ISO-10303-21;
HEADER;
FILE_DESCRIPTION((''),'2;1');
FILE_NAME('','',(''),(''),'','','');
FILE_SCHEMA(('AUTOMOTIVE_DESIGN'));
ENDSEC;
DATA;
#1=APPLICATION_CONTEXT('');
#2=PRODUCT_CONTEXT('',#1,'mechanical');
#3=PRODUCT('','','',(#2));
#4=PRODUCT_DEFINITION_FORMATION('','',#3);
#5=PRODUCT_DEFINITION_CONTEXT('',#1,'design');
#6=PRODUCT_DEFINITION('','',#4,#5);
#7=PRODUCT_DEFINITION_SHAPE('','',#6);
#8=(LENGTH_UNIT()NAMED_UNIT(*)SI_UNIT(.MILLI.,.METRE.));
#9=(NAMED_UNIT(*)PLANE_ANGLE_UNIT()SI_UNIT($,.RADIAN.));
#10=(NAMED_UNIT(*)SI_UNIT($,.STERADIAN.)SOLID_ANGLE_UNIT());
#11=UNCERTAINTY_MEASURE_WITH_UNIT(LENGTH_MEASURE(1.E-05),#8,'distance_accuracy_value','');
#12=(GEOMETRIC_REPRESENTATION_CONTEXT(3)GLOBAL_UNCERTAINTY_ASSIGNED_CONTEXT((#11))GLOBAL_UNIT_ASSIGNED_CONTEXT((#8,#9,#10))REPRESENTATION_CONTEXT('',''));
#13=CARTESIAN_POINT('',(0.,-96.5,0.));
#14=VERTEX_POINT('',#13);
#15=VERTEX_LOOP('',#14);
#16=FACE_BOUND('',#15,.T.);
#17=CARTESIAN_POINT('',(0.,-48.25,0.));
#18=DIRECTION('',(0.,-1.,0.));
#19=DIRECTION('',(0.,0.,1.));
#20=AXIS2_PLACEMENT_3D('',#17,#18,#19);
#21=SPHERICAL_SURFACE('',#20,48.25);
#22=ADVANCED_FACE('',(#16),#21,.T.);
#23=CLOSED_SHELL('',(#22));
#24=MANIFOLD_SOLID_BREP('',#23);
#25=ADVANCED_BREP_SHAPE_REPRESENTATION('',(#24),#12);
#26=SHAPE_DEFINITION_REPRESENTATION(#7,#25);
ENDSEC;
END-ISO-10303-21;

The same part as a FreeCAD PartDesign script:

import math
import FreeCAD as App
import Part
import Sketcher

V = App.Vector
Q = App.Units.Quantity

doc = App.newDocument("Part")
body = doc.addObject("PartDesign::Body", "Body")

# Sketch on YZ plane
sketch1 = doc.addObject("Sketcher::SketchObject", "Sketch")
body.addObject(sketch1)
sketch1.AttachmentSupport = (doc.YZ_Plane, [""])
sketch1.MapMode = "FlatFace"
sketch1.addGeometry([
    Part.LineSegment(V(-96.5, 0, 0), V(0, 0, 0)),
    Part.ArcOfCircle(Part.Circle(V(-48.25, 0, 0), V(0, 0, 1), 48.25), math.radians(0), math.radians(180)),
], False)
sketch1.addConstraint([
    Sketcher.Constraint("Coincident", 0, 1, 1, 2),
    Sketcher.Constraint("Coincident", 1, 1, 0, 2),
    Sketcher.Constraint("Horizontal", 0),
    Sketcher.Constraint("Coincident", 1, 1, -1, 1),
    Sketcher.Constraint("PointOnObject", 1, 3, -1),
    Sketcher.Constraint("Radius", 1, Q("48.25 mm")),
])
revolution = doc.addObject("PartDesign::Revolution", "Revolution")
body.addObject(revolution)
revolution.Profile = sketch1
revolution.ReferenceAxis = (sketch1, ["H_Axis"])
revolution.Angle = 360

doc.recompute()
